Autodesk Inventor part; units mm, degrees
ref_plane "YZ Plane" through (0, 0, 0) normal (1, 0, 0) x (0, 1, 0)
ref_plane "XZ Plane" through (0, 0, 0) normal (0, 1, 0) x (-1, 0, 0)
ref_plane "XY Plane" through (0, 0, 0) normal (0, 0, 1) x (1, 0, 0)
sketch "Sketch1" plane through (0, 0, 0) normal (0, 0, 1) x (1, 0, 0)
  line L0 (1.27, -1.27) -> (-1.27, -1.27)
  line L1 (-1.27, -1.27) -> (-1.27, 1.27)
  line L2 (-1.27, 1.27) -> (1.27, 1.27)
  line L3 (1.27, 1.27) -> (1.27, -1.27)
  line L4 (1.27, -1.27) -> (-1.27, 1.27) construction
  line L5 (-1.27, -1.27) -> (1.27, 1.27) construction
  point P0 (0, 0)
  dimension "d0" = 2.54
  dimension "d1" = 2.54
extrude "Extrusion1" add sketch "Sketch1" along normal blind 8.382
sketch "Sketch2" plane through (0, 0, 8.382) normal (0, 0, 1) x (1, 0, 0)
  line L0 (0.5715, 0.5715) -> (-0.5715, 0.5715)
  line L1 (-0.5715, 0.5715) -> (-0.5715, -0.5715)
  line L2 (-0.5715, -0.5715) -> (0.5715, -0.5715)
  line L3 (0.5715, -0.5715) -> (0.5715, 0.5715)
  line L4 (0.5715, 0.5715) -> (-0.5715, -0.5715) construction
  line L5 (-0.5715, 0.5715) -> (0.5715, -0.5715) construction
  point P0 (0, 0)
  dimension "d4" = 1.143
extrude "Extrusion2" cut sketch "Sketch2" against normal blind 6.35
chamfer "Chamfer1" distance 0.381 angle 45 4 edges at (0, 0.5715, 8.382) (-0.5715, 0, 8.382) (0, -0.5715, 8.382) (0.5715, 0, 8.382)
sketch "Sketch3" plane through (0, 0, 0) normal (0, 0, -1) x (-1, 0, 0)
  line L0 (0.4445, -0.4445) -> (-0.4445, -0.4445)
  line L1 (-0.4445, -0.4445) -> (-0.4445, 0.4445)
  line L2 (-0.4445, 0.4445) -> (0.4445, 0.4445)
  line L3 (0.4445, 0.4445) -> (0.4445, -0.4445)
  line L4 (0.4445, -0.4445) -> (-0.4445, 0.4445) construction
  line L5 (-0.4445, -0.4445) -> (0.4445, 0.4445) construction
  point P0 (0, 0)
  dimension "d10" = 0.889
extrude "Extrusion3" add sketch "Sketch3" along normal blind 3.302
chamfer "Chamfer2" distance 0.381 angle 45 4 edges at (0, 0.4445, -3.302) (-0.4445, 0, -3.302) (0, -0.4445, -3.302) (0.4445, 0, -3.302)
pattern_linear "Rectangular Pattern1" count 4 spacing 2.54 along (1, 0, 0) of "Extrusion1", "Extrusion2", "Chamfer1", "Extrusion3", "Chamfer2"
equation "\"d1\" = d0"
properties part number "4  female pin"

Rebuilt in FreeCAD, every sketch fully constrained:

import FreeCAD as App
import Part
import Sketcher

V = App.Vector
Q = App.Units.Quantity


def edges_at(feature, points):
    """Names of the edges that pass closest to the given points."""
    edges = feature.Shape.Edges
    near = lambda p: min(range(len(edges)), key=lambda i: edges[i].distToShape(Part.Vertex(*p))[0])
    return sorted({f"Edge{near(p) + 1}" for p in points})


def add_polygon(sketch, points):
    """Adds a closed chain of lines whose ends are joined by coincident constraints."""
    first, n = sketch.GeometryCount, len(points)
    for a, b in zip(points, points[1:] + points[:1]):
        sketch.addGeometry(Part.LineSegment(App.Vector(*a, 0), App.Vector(*b, 0)), False)
    for i in range(n):
        sketch.addConstraint(Sketcher.Constraint("Coincident", first + i, 2, first + (i + 1) % n, 1))

doc = App.newDocument("Part")
body = doc.addObject("PartDesign::Body", "Body")

# Sketch on XY plane
sketch1 = body.newObject("Sketcher::SketchObject", "Sketch")
sketch1.AttachmentSupport = (doc.getObject("XY_Plane"), [""])
sketch1.MapMode = "FlatFace"
add_polygon(sketch1, [(-1.3, -1.3), (1.3, -1.3), (1.3, 1.3), (-1.3, 1.3)])  # lines 0-3
sketch1.addConstraint(Sketcher.Constraint("Horizontal", 0))
sketch1.addConstraint(Sketcher.Constraint("Vertical", 1))
sketch1.addConstraint(Sketcher.Constraint("Horizontal", 2))
sketch1.addConstraint(Sketcher.Constraint("Vertical", 3))
sketch1.addConstraint(Sketcher.Constraint("Symmetric", 0, 2, 2, 2, -1, 1))
sketch1.addConstraint(Sketcher.Constraint("Equal", 2, 1))
sketch1.addConstraint(Sketcher.Constraint("DistanceX", 0, 1, 0, 2, Q("0.1 in")))
pad1 = body.newObject("PartDesign::Pad", "Pad")
pad1.Profile = sketch1
pad1.Length = Q("0.33 in")

# Sketch on XY plane
sketch2 = body.newObject("Sketcher::SketchObject", "Sketch001")
sketch2.AttachmentSupport = (doc.getObject("XY_Plane"), [""])
sketch2.MapMode = "FlatFace"
sketch2.AttachmentOffset = App.Placement(V(0, 0, 0.33 * 25.4), App.Rotation())
add_polygon(sketch2, [(0.6, -0.6), (0.6, 0.6), (-0.6, 0.6), (-0.6, -0.6)])  # lines 0-3
sketch2.addConstraint(Sketcher.Constraint("Vertical", 0))
sketch2.addConstraint(Sketcher.Constraint("Horizontal", 1))
sketch2.addConstraint(Sketcher.Constraint("Vertical", 2))
sketch2.addConstraint(Sketcher.Constraint("Horizontal", 3))
sketch2.addConstraint(Sketcher.Constraint("Symmetric", 0, 2, 2, 2, -1, 1))
sketch2.addConstraint(Sketcher.Constraint("Equal", 3, 0))
sketch2.addConstraint(Sketcher.Constraint("DistanceX", 1, 2, 1, 1, Q("0.045 in")))
pocket1 = body.newObject("PartDesign::Pocket", "Pocket")
pocket1.Profile = sketch2
pocket1.Length = Q("0.25 in")
doc.recompute()

chamfer = body.newObject("PartDesign::Chamfer", "Chamfer")
chamfer.Base = (pocket1, edges_at(pocket1, [
    (0, 0.572, 8.382),
    (-0.572, 0, 8.382),
    (0, -0.572, 8.382),
    (0.572, 0, 8.382),
]))
chamfer.Size = Q("0.015 in")

# Sketch on XY plane
sketch3 = body.newObject("Sketcher::SketchObject", "Sketch002")
sketch3.AttachmentSupport = (doc.getObject("XY_Plane"), [""])
sketch3.MapMode = "FlatFace"
add_polygon(sketch3, [(0.4, -0.4), (-0.4, -0.4), (-0.4, 0.4), (0.4, 0.4)])  # lines 0-3
sketch3.addConstraint(Sketcher.Constraint("Horizontal", 0))
sketch3.addConstraint(Sketcher.Constraint("Vertical", 1))
sketch3.addConstraint(Sketcher.Constraint("Horizontal", 2))
sketch3.addConstraint(Sketcher.Constraint("Vertical", 3))
sketch3.addConstraint(Sketcher.Constraint("Symmetric", 0, 2, 2, 2, -1, 1))
sketch3.addConstraint(Sketcher.Constraint("Equal", 2, 1))
sketch3.addConstraint(Sketcher.Constraint("DistanceX", 0, 2, 0, 1, Q("0.035 in")))
pad2 = body.newObject("PartDesign::Pad", "Pad001")
pad2.Profile = sketch3
pad2.Length = Q("0.13 in")
pad2.Reversed = True
doc.recompute()

chamfer2 = body.newObject("PartDesign::Chamfer", "Chamfer001")
chamfer2.Base = (pad2, edges_at(pad2, [
    (0, 0.445, -3.302),
    (-0.445, 0, -3.302),
    (0, -0.445, -3.302),
    (0.445, 0, -3.302),
]))
chamfer2.Size = Q("0.015 in")
doc.recompute()

linearpattern = body.newObject("PartDesign::LinearPattern", "LinearPattern")
linearpattern.Originals = [pad1, pocket1, chamfer, pad2, chamfer2]
linearpattern.Direction = (doc.getObject("X_Axis"), [""])
linearpattern.Mode = "offset"
linearpattern.Offset = Q("0.1 in")
linearpattern.Occurrences = 4
body.Tip = linearpattern

doc.recompute()
